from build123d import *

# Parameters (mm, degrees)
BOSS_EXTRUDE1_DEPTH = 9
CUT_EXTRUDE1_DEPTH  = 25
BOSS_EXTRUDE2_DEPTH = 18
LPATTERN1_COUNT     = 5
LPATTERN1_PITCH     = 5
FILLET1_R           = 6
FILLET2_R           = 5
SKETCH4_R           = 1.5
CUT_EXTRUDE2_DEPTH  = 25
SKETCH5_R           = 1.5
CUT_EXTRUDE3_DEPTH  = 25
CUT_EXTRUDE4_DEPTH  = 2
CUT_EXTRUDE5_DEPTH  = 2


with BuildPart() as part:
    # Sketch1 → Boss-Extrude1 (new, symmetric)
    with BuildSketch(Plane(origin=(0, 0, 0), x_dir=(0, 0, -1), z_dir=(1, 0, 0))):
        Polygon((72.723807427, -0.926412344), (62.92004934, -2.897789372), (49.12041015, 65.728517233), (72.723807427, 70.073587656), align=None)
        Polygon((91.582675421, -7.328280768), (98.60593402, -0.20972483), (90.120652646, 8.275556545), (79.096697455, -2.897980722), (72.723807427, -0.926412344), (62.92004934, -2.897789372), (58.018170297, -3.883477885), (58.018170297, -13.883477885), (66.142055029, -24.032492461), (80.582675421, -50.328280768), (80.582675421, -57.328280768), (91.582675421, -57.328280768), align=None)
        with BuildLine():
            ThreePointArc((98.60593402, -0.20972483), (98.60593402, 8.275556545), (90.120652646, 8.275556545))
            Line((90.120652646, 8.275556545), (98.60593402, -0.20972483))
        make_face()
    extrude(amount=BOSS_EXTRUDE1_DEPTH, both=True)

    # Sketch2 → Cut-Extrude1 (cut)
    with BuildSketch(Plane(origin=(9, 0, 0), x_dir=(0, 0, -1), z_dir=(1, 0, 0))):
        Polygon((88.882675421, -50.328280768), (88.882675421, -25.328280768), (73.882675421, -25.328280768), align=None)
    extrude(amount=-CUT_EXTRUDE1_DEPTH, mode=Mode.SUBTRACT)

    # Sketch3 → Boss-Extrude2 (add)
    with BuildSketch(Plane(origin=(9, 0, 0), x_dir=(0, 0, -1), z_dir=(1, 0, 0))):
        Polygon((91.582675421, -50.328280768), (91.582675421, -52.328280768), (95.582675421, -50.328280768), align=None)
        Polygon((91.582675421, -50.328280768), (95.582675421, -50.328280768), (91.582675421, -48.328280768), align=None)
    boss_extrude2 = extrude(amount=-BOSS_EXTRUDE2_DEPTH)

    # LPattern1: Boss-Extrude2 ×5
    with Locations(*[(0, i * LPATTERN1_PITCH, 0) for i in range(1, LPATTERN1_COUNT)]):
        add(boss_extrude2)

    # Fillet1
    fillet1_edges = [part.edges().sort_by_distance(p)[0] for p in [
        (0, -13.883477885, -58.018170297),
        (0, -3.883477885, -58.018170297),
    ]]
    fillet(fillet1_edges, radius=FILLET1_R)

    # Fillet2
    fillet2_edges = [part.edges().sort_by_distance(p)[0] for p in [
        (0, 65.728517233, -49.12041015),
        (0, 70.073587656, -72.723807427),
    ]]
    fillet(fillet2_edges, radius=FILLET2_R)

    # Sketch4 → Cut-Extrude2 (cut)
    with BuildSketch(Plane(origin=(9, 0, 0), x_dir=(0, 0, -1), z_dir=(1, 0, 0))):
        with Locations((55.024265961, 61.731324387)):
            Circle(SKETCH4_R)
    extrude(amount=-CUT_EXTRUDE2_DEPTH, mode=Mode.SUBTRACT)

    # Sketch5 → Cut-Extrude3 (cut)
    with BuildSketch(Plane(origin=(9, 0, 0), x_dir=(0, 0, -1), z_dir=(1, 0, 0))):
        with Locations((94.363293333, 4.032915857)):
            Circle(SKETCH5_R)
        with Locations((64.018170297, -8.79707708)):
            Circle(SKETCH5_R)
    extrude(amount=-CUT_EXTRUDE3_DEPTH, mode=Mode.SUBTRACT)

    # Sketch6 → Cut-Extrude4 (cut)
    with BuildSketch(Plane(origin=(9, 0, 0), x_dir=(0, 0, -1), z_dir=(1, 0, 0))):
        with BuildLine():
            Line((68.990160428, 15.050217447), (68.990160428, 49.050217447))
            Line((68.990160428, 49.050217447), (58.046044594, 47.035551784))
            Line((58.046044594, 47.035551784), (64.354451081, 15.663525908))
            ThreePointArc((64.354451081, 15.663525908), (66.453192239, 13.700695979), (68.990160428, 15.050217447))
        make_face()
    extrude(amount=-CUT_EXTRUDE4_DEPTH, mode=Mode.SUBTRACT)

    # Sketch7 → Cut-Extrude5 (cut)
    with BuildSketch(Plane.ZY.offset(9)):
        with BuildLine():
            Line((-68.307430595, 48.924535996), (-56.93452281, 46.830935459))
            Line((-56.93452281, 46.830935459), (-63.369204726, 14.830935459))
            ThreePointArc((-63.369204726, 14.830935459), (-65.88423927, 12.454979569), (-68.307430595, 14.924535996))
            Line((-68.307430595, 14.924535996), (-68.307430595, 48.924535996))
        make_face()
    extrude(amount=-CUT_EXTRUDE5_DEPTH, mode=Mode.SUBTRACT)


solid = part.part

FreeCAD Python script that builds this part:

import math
import FreeCAD as App
import Part
import Sketcher


def edges_at(feature, points):
    """Names of the edges that pass closest to the given points."""
    edges = feature.Shape.Edges
    near = lambda p: min(range(len(edges)), key=lambda i: edges[i].distToShape(Part.Vertex(*p))[0])
    return sorted({f"Edge{near(p) + 1}" for p in points})


def add_polygon(sketch, points):
    """Adds a closed chain of lines whose ends are joined by coincident constraints."""
    first, n = sketch.GeometryCount, len(points)
    for a, b in zip(points, points[1:] + points[:1]):
        sketch.addGeometry(Part.LineSegment(App.Vector(*a, 0), App.Vector(*b, 0)), False)
    for i in range(n):
        sketch.addConstraint(Sketcher.Constraint("Coincident", first + i, 2, first + (i + 1) % n, 1))

doc = App.newDocument("Part")
body = doc.addObject("PartDesign::Body", "Body")

sketch1 = body.newObject("Sketcher::SketchObject", "Sketch")
sketch1.AttachmentSupport = (doc.getObject("YZ_Plane"), [""])
sketch1.MapMode = "FlatFace"
sketch1.addGeometry(Part.LineSegment(App.Vector(65.7, -49.1, 0), App.Vector(-2.9, -62.9, 0)), False)
sketch1.addGeometry(Part.LineSegment(App.Vector(-2.9, -62.9, 0), App.Vector(-3.9, -58, 0)), False)
sketch1.addGeometry(Part.LineSegment(App.Vector(-3.9, -58, 0), App.Vector(-13.9, -58, 0)), False)
sketch1.addGeometry(Part.LineSegment(App.Vector(-13.9, -58, 0), App.Vector(-24, -66.1, 0)), False)
sketch1.addGeometry(Part.LineSegment(App.Vector(-24, -66.1, 0), App.Vector(-50.3, -80.6, 0)), False)
sketch1.addGeometry(Part.LineSegment(App.Vector(-50.3, -80.6, 0), App.Vector(-57.3, -80.6, 0)), False)
sketch1.addGeometry(Part.LineSegment(App.Vector(-57.3, -80.6, 0), App.Vector(-57.3, -91.6, 0)), False)
sketch1.addGeometry(Part.LineSegment(App.Vector(-57.3, -91.6, 0), App.Vector(-7.3, -91.6, 0)), False)
sketch1.addGeometry(Part.LineSegment(App.Vector(-7.3, -91.6, 0), App.Vector(-0.2, -98.6, 0)), False)
sketch1.addGeometry(Part.ArcOfCircle(Part.Circle(App.Vector(4, -94.4, 0), App.Vector(0, 0, 1), 6), math.radians(-135), math.radians(45)), False)
sketch1.addGeometry(Part.LineSegment(App.Vector(8.3, -90.1, 0), App.Vector(-2.9, -79.1, 0)), False)
sketch1.addGeometry(Part.LineSegment(App.Vector(-2.9, -79.1, 0), App.Vector(-0.9, -72.7, 0)), False)
sketch1.addGeometry(Part.LineSegment(App.Vector(-0.9, -72.7, 0), App.Vector(70.1, -72.7, 0)), False)
sketch1.addGeometry(Part.LineSegment(App.Vector(70.1, -72.7, 0), App.Vector(65.7, -49.1, 0)), False)
sketch1.addConstraint(Sketcher.Constraint("Coincident", 0, 2, 1, 1))
sketch1.addConstraint(Sketcher.Constraint("Coincident", 1, 2, 2, 1))
sketch1.addConstraint(Sketcher.Constraint("Coincident", 2, 2, 3, 1))
sketch1.addConstraint(Sketcher.Constraint("Coincident", 3, 2, 4, 1))
sketch1.addConstraint(Sketcher.Constraint("Coincident", 4, 2, 5, 1))
sketch1.addConstraint(Sketcher.Constraint("Coincident", 5, 2, 6, 1))
sketch1.addConstraint(Sketcher.Constraint("Coincident", 6, 2, 7, 1))
sketch1.addConstraint(Sketcher.Constraint("Coincident", 7, 2, 8, 1))
sketch1.addConstraint(Sketcher.Constraint("Coincident", 8, 2, 9, 1))
sketch1.addConstraint(Sketcher.Constraint("Coincident", 9, 2, 10, 1))
sketch1.addConstraint(Sketcher.Constraint("Coincident", 10, 2, 11, 1))
sketch1.addConstraint(Sketcher.Constraint("Coincident", 11, 2, 12, 1))
sketch1.addConstraint(Sketcher.Constraint("Coincident", 12, 2, 13, 1))
sketch1.addConstraint(Sketcher.Constraint("Coincident", 13, 2, 0, 1))
sketch1.addConstraint(Sketcher.Constraint("Horizontal", 2))
sketch1.addConstraint(Sketcher.Constraint("Horizontal", 5))
sketch1.addConstraint(Sketcher.Constraint("Vertical", 6))
sketch1.addConstraint(Sketcher.Constraint("Horizontal", 7))
sketch1.addConstraint(Sketcher.Constraint("Horizontal", 12))
sketch1.addConstraint(Sketcher.Constraint("Perpendicular", 0, 1))
sketch1.addConstraint(Sketcher.Constraint("Parallel", 8, 10))
sketch1.addConstraint(Sketcher.Constraint("Radius", 9, 6.0))
sketch1.addConstraint(Sketcher.Constraint("DistanceX", 2, 2, 2, 1, 10.0))
sketch1.addConstraint(Sketcher.Constraint("DistanceX", 5, 2, 5, 1, 7.0))
sketch1.addConstraint(Sketcher.Constraint("DistanceX", 7, 1, 7, 2, 50.0))
sketch1.addConstraint(Sketcher.Constraint("DistanceX", 12, 1, 12, 2, 71.0))
sketch1.addConstraint(Sketcher.Constraint("DistanceY", 6, 2, 6, 1, 11.0))
sketch1.addConstraint(Sketcher.Constraint("Distance", 0, 70.0))
sketch1.addConstraint(Sketcher.Constraint("Distance", 1, 5.0))
sketch1.addConstraint(Sketcher.Constraint("Distance", 3, 13.0))
sketch1.addConstraint(Sketcher.Constraint("Distance", 4, 30.0))
sketch1.addConstraint(Sketcher.Constraint("Distance", 8, 10.0))
sketch1.addConstraint(Sketcher.Constraint("Distance", 13, 24.0))
sketch1.addConstraint(Sketcher.Constraint("DistanceX", 7, 2, 10, 2, 4.4303))
sketch1.addConstraint(Sketcher.Constraint("DistanceX", 0, 2, -1, 1, 2.897789))
sketch1.addConstraint(Sketcher.Constraint("DistanceY", 0, 2, -1, 1, 62.920049))
sketch1.addConstraint(Sketcher.Constraint("DistanceY", 1, 2, -1, 1, 58.01817))
sketch1.addConstraint(Sketcher.Constraint("DistanceX", 4, 2, -1, 1, 50.328281))
sketch1.addConstraint(Sketcher.Constraint("DistanceX", 3, 2, 9, 3, 28.065408))
sketch1.addConstraint(Sketcher.Constraint("DistanceY", 9, 3, 3, 2, 28.221238))
sketch1.addConstraint(Sketcher.Constraint("DistanceX", 4, 2, 3, 2, 26.295788))
sketch1.addConstraint(Sketcher.Constraint("DistanceX", 9, 3, 9, 2, 4.242641))
sketch1.addConstraint(Sketcher.Constraint("DistanceX", 10, 2, 11, 2, 1.971568))
pad1 = body.newObject("PartDesign::Pad", "Pad")
pad1.Profile = sketch1
pad1.Length = 18
pad1.Midplane = True

sketch2 = body.newObject("Sketcher::SketchObject", "Sketch001")
sketch2.AttachmentSupport = (doc.getObject("YZ_Plane"), [""])
sketch2.MapMode = "FlatFace"
sketch2.AttachmentOffset = App.Placement(App.Vector(0, 0, 9), App.Rotation())
add_polygon(sketch2, [(-50, -89), (-25, -89), (-25, -74)])
sketch2.addConstraint(Sketcher.Constraint("Horizontal", 0))
sketch2.addConstraint(Sketcher.Constraint("Vertical", 1))
sketch2.addConstraint(Sketcher.Constraint("DistanceX", 0, 1, 0, 2, 25.0))
sketch2.addConstraint(Sketcher.Constraint("DistanceY", 1, 1, 1, 2, 15.0))
sketch2.addConstraint(Sketcher.Constraint("DistanceX", 0, 2, -1, 1, 25.328281))
sketch2.addConstraint(Sketcher.Constraint("DistanceY", 0, 2, -1, 1, 88.882675))
pocket1 = body.newObject("PartDesign::Pocket", "Pocket")
pocket1.Profile = sketch2
pocket1.Length = 25

sketch3 = body.newObject("Sketcher::SketchObject", "Sketch002")
sketch3.AttachmentSupport = (doc.getObject("YZ_Plane"), [""])
sketch3.MapMode = "FlatFace"
sketch3.AttachmentOffset = App.Placement(App.Vector(0, 0, 9), App.Rotation())
add_polygon(sketch3, [(-52.3, -91.6), (-50.3, -95.6), (-48.3, -91.6)])
sketch3.addConstraint(Sketcher.Constraint("Horizontal", 2))
sketch3.addConstraint(Sketcher.Constraint("Equal", 0, 1))
sketch3.addConstraint(Sketcher.Constraint("DistanceX", 2, 2, 2, 1, 4.0))
sketch3.addConstraint(Sketcher.Constraint("DistanceY", 0, 2, 1, 2, 4.0))
sketch3.addConstraint(Sketcher.Constraint("DistanceX", 0, 2, -1, 1, 50.328281))
sketch3.addConstraint(Sketcher.Constraint("DistanceY", 0, 2, -1, 1, 95.582675))
pad2 = body.newObject("PartDesign::Pad", "Pad001")
pad2.Profile = sketch3
pad2.Length = 18
pad2.Reversed = True
doc.recompute()

linearpattern = body.newObject("PartDesign::LinearPattern", "LinearPattern")
linearpattern.Originals = [pad2]
linearpattern.Direction = (doc.getObject("Y_Axis"), [""])
linearpattern.Mode = "offset"
linearpattern.Offset = 5
linearpattern.Occurrences = 5
body.Tip = linearpattern
doc.recompute()

fillet = body.newObject("PartDesign::Fillet", "Fillet")
fillet.Base = (linearpattern, edges_at(linearpattern, [(0, -13.883, -58.018), (0, -3.883, -58.018)]))
fillet.Radius = 6
doc.recompute()

fillet2 = body.newObject("PartDesign::Fillet", "Fillet001")
fillet2.Base = (fillet, edges_at(fillet, [(0, 65.729, -49.12), (0, 70.074, -72.724)]))
fillet2.Radius = 5

sketch4 = body.newObject("Sketcher::SketchObject", "Sketch003")
sketch4.AttachmentSupport = (doc.getObject("YZ_Plane"), [""])
sketch4.MapMode = "FlatFace"
sketch4.AttachmentOffset = App.Placement(App.Vector(0, 0, 9), App.Rotation())
sketch4.addGeometry(Part.Circle(App.Vector(61.7, -55, 0), App.Vector(0, 0, 1), 1.5), False)
sketch4.addConstraint(Sketcher.Constraint("Diameter", 0, 3.0))
sketch4.addConstraint(Sketcher.Constraint("DistanceX", -1, 1, 0, 3, 61.731324))
sketch4.addConstraint(Sketcher.Constraint("DistanceY", 0, 3, -1, 1, 55.024266))
pocket2 = body.newObject("PartDesign::Pocket", "Pocket001")
pocket2.Profile = sketch4
pocket2.Length = 25

sketch5 = body.newObject("Sketcher::SketchObject", "Sketch004")
sketch5.AttachmentSupport = (doc.getObject("YZ_Plane"), [""])
sketch5.MapMode = "FlatFace"
sketch5.AttachmentOffset = App.Placement(App.Vector(0, 0, 9), App.Rotation())
sketch5.addGeometry(Part.Circle(App.Vector(4, -94.4, 0), App.Vector(0, 0, 1), 1.5), False)
sketch5.addGeometry(Part.Circle(App.Vector(-8.8, -64, 0), App.Vector(0, 0, 1), 1.5), False)
sketch5.addConstraint(Sketcher.Constraint("Equal", 0, 1))
sketch5.addConstraint(Sketcher.Constraint("Diameter", 0, 3.0))
sketch5.addConstraint(Sketcher.Constraint("DistanceY", 1, 3, -1, 1, 64.01817))
sketch5.addConstraint(Sketcher.Constraint("DistanceX", -1, 1, 0, 3, 4.032916))
sketch5.addConstraint(Sketcher.Constraint("DistanceY", 0, 3, -1, 1, 94.363293))
sketch5.addConstraint(Sketcher.Constraint("DistanceX", 1, 3, -1, 1, 8.797077))
pocket3 = body.newObject("PartDesign::Pocket", "Pocket002")
pocket3.Profile = sketch5
pocket3.Length = 25

sketch6 = body.newObject("Sketcher::SketchObject", "Sketch005")
sketch6.AttachmentSupport = (doc.getObject("YZ_Plane"), [""])
sketch6.MapMode = "FlatFace"
sketch6.AttachmentOffset = App.Placement(App.Vector(0, 0, 9), App.Rotation())
sketch6.addGeometry(Part.LineSegment(App.Vector(15.1, -69, 0), App.Vector(49.1, -69, 0)), False)
sketch6.addGeometry(Part.LineSegment(App.Vector(49.1, -69, 0), App.Vector(47, -58, 0)), False)
sketch6.addGeometry(Part.LineSegment(App.Vector(47, -58, 0), App.Vector(15.7, -64.4, 0)), False)
sketch6.addGeometry(Part.ArcOfCircle(Part.Circle(App.Vector(16.2, -66.8, 0), App.Vector(0, 0, 1), 2.5), math.radians(101), math.radians(244)), False)
sketch6.addConstraint(Sketcher.Constraint("Coincident", 0, 2, 1, 1))
sketch6.addConstraint(Sketcher.Constraint("Coincident", 1, 2, 2, 1))
sketch6.addConstraint(Sketcher.Constraint("Tangent", 2, 2, 3, 1))
sketch6.addConstraint(Sketcher.Constraint("Coincident", 3, 2, 0, 1))
sketch6.addConstraint(Sketcher.Constraint("Horizontal", 0))
sketch6.addConstraint(Sketcher.Constraint("DistanceX", 0, 1, 0, 2, 34.0))
sketch6.addConstraint(Sketcher.Constraint("Distance", 2, 32.0))
sketch6.addConstraint(Sketcher.Constraint("Radius", 3, 2.471381))
sketch6.addConstraint(Sketcher.Constraint("DistanceX", -1, 1, 3, 3, 16.150728))
sketch6.addConstraint(Sketcher.Constraint("DistanceY", 0, 2, -1, 1, 68.99016))
sketch6.addConstraint(Sketcher.Constraint("DistanceX", -1, 1, 1, 2, 47.035552))
sketch6.addConstraint(Sketcher.Constraint("DistanceY", 2, 2, -1, 1, 64.354451))
pocket4 = body.newObject("PartDesign::Pocket", "Pocket003")
pocket4.Profile = sketch6
pocket4.Length = 2

sketch7 = body.newObject("Sketcher::SketchObject", "Sketch006")
sketch7.AttachmentSupport = (doc.getObject("YZ_Plane"), [""])
sketch7.MapMode = "FlatFace"
sketch7.AttachmentOffset = App.Placement(App.Vector(0, 0, -9), App.Rotation())
sketch7.addGeometry(Part.LineSegment(App.Vector(46.8, -56.9, 0), App.Vector(48.9, -68.3, 0)), False)
sketch7.addGeometry(Part.LineSegment(App.Vector(48.9, -68.3, 0), App.Vector(14.9, -68.3, 0)), False)
sketch7.addGeometry(Part.ArcOfCircle(Part.Circle(App.Vector(14.9, -65.8, 0), App.Vector(0, 0, 1), 2.5), math.radians(92), math.radians(270)), False)
sketch7.addGeometry(Part.LineSegment(App.Vector(14.8, -63.4, 0), App.Vector(46.8, -56.9, 0)), False)
sketch7.addConstraint(Sketcher.Constraint("Coincident", 0, 2, 1, 1))
sketch7.addConstraint(Sketcher.Constraint("Tangent", 1, 2, 2, 2))
sketch7.addConstraint(Sketcher.Constraint("Coincident", 2, 1, 3, 1))
sketch7.addConstraint(Sketcher.Constraint("Coincident", 3, 2, 0, 1))
sketch7.addConstraint(Sketcher.Constraint("Horizontal", 1))
sketch7.addConstraint(Sketcher.Constraint("DistanceX", 1, 2, 1, 1, 34.0))
sketch7.addConstraint(Sketcher.Constraint("Radius", 2, 2.47))
sketch7.addConstraint(Sketcher.Constraint("DistanceX", 2, 1, 3, 2, 32.0))
sketch7.addConstraint(Sketcher.Constraint("DistanceX", 2, 1, 2, 3, 0.093601))
sketch7.addConstraint(Sketcher.Constraint("DistanceY", 2, 3, -1, 1, 65.837431))
sketch7.addConstraint(Sketcher.Constraint("DistanceY", 2, 1, 3, 2, 6.434682))
sketch7.addConstraint(Sketcher.Constraint("DistanceX", -1, 1, 2, 3, 14.924536))
pocket5 = body.newObject("PartDesign::Pocket", "Pocket004")
pocket5.Profile = sketch7
pocket5.Length = 2
pocket5.Reversed = True

doc.recompute()
